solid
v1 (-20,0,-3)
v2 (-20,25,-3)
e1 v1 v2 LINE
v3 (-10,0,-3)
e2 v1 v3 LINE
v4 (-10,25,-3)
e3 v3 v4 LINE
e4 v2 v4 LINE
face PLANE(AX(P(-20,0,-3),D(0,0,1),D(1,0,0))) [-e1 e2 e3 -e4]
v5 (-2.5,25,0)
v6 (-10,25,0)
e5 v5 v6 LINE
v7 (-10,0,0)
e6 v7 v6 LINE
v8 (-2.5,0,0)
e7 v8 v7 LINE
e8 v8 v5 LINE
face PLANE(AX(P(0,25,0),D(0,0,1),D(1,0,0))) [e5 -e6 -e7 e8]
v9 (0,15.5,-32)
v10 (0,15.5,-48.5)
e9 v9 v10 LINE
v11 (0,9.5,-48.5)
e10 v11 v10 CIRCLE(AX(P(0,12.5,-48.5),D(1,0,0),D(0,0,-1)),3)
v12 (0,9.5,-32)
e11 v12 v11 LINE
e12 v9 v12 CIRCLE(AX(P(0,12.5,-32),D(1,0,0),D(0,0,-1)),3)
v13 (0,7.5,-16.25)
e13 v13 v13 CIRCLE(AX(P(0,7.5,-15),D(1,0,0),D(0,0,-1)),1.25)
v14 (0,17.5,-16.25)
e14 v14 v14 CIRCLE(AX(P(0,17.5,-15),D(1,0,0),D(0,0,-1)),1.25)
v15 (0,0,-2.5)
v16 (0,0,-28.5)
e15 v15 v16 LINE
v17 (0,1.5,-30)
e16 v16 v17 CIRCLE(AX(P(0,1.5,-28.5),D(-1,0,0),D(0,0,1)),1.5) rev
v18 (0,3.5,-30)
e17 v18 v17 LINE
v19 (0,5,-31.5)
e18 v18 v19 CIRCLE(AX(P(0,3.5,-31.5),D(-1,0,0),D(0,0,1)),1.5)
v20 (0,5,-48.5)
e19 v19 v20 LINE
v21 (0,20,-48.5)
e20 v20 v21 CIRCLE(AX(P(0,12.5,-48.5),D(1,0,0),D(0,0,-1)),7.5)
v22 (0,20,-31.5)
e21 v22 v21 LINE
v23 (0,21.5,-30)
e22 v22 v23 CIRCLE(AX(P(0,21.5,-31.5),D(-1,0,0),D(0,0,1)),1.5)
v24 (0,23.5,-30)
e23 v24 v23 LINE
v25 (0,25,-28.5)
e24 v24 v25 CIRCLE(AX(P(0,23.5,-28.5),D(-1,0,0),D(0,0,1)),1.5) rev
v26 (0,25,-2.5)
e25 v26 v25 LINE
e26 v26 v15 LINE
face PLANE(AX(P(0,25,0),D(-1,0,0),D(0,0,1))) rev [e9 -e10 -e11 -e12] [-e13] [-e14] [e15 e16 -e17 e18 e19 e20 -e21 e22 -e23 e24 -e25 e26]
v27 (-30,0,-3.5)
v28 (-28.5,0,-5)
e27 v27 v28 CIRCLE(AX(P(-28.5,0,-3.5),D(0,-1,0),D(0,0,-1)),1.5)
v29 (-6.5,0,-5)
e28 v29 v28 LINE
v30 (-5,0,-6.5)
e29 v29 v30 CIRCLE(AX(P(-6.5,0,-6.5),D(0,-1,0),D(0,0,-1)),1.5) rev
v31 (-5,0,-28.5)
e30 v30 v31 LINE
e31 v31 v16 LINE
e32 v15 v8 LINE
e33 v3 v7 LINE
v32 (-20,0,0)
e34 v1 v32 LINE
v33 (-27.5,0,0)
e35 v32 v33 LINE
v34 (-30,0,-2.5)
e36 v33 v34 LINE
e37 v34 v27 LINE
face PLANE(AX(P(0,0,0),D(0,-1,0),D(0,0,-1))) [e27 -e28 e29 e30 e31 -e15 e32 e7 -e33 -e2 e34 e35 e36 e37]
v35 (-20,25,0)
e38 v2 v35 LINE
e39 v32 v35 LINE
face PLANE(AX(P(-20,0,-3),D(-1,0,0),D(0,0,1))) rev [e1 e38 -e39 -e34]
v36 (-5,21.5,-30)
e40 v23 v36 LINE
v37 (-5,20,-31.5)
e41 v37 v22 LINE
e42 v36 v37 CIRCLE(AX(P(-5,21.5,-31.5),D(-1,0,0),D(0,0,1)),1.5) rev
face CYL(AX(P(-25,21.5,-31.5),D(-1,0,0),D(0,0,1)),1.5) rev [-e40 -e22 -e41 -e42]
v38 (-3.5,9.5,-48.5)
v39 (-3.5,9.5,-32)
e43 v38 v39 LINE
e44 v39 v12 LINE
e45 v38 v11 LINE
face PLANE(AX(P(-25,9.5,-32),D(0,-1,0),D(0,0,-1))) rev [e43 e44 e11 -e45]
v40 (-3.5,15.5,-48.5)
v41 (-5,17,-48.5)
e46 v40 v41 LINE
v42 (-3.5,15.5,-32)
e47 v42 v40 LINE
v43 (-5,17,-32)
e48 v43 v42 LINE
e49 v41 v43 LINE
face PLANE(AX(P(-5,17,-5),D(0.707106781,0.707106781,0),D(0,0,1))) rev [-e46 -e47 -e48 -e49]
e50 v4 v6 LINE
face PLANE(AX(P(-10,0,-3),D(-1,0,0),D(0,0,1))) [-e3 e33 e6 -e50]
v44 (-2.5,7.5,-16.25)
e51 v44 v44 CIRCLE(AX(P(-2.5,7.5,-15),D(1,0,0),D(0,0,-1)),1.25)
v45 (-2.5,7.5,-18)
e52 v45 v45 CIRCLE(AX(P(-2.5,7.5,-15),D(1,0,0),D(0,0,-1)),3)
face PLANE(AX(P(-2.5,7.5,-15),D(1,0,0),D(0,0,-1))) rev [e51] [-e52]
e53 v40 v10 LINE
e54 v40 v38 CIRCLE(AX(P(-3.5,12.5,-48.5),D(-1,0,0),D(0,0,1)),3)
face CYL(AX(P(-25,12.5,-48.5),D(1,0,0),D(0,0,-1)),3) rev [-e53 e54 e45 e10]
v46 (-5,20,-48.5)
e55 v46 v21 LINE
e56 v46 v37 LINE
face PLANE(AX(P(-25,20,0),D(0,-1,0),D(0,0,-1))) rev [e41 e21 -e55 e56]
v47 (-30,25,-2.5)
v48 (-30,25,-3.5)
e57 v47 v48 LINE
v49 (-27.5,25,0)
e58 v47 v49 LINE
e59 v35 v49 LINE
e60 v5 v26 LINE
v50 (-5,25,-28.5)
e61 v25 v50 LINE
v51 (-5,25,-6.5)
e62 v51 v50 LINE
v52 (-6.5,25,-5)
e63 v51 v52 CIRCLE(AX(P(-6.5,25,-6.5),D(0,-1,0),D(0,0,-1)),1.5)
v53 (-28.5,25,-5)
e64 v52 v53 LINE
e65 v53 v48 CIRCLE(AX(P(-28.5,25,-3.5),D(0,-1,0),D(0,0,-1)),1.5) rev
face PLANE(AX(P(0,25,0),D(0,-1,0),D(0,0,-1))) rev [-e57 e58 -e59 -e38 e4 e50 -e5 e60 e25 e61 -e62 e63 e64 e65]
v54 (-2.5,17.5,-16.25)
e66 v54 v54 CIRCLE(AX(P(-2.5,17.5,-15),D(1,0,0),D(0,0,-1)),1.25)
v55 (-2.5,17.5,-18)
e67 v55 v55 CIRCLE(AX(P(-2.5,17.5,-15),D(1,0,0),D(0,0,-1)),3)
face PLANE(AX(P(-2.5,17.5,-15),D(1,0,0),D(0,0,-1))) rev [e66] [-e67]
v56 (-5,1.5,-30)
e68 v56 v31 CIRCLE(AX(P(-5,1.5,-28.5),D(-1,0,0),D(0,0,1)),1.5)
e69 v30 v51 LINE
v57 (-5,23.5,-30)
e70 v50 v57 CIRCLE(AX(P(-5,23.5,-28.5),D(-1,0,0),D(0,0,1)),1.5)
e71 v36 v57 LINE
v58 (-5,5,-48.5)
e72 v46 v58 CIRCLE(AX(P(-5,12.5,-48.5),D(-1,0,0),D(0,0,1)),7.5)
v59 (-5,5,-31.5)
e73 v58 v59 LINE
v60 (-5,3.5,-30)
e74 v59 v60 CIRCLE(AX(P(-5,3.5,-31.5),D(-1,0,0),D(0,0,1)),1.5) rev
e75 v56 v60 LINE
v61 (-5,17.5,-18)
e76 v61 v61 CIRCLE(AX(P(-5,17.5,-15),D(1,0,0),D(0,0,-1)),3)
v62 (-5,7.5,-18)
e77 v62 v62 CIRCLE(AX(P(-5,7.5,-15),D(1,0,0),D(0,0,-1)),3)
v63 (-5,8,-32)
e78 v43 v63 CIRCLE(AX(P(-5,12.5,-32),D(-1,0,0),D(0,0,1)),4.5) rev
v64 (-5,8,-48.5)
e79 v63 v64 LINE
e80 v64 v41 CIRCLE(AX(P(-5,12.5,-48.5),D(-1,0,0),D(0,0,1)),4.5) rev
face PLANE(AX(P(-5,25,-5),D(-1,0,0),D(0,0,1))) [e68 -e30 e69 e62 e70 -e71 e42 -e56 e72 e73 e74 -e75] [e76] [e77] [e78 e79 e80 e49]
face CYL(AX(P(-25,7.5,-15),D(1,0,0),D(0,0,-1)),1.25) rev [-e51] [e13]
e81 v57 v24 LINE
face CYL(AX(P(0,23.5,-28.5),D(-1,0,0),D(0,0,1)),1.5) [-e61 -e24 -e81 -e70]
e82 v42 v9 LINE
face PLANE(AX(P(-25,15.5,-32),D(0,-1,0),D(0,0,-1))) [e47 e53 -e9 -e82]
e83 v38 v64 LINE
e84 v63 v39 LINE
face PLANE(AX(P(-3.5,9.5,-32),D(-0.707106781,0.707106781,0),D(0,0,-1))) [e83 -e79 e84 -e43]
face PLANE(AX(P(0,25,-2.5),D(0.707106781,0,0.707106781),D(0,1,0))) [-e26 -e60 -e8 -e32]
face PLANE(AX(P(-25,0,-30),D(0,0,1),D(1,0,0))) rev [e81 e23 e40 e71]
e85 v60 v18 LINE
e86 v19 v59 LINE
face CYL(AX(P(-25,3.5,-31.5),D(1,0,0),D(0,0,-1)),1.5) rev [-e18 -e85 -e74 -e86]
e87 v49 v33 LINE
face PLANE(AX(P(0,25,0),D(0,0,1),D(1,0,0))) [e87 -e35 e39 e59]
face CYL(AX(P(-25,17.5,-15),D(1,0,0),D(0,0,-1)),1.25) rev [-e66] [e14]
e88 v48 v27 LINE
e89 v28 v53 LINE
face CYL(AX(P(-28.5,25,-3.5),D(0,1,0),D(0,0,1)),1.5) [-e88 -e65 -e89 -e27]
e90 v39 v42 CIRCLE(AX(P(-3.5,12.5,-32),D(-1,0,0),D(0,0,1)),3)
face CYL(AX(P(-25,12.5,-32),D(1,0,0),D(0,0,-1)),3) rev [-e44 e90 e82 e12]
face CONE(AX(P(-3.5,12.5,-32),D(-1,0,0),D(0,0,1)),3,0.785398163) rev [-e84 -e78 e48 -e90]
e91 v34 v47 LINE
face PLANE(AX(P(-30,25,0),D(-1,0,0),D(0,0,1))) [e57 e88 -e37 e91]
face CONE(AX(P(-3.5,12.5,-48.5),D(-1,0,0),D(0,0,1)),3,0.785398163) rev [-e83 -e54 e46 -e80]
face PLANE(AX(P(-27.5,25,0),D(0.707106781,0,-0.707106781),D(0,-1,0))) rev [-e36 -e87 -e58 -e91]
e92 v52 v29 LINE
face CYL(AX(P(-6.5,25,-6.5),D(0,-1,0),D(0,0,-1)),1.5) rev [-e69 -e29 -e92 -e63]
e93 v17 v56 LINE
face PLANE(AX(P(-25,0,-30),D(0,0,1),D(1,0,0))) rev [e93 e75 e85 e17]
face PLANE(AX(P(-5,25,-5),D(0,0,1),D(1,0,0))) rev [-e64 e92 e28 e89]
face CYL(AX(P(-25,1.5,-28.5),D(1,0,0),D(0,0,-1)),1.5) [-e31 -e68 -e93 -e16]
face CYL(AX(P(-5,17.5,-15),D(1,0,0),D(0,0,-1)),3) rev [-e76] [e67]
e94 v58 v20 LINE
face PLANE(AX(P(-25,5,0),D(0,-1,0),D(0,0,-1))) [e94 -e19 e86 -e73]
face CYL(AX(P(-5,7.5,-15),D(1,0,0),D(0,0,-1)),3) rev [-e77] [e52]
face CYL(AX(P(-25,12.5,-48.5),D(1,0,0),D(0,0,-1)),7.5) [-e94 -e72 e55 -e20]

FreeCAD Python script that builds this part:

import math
import FreeCAD as App
import Part
import Sketcher

V = App.Vector
Q = App.Units.Quantity


def edges_at(feature, points):
    """Names of the edges that pass closest to the given points."""
    edges = feature.Shape.Edges
    near = lambda p: min(range(len(edges)), key=lambda i: edges[i].distToShape(Part.Vertex(*p))[0])
    return sorted({f"Edge{near(p) + 1}" for p in points})

doc = App.newDocument("Part")
body = doc.addObject("PartDesign::Body", "Body")

# Sketch on XZ plane
sketch1 = doc.addObject("Sketcher::SketchObject", "Sketch")
body.addObject(sketch1)
sketch1.AttachmentSupport = (doc.XZ_Plane, [""])
sketch1.MapMode = "FlatFace"
sketch1.addGeometry(Part.LineSegment(V(-30, 0, 0), V(0, 0, 0)), False)
sketch1.addGeometry(Part.LineSegment(V(0, 0, 0), V(0, -56, 0)), False)
sketch1.addGeometry(Part.LineSegment(V(0, -56, 0), V(-5, -56, 0)), False)
sketch1.addGeometry(Part.LineSegment(V(-5, -56, 0), V(-5, -5, 0)), False)
sketch1.addGeometry(Part.LineSegment(V(-5, -5, 0), V(-30, -5, 0)), False)
sketch1.addGeometry(Part.LineSegment(V(-30, -5, 0), V(-30, 0, 0)), False)
sketch1.addConstraint(Sketcher.Constraint("Coincident", 0, 2, 1, 1))
sketch1.addConstraint(Sketcher.Constraint("Coincident", 1, 2, 2, 1))
sketch1.addConstraint(Sketcher.Constraint("Coincident", 2, 2, 3, 1))
sketch1.addConstraint(Sketcher.Constraint("Coincident", 3, 2, 4, 1))
sketch1.addConstraint(Sketcher.Constraint("Coincident", 4, 2, 5, 1))
sketch1.addConstraint(Sketcher.Constraint("Coincident", 5, 2, 0, 1))
sketch1.addConstraint(Sketcher.Constraint("Horizontal", 0))
sketch1.addConstraint(Sketcher.Constraint("Vertical", 1))
sketch1.addConstraint(Sketcher.Constraint("Horizontal", 2))
sketch1.addConstraint(Sketcher.Constraint("Vertical", 3))
sketch1.addConstraint(Sketcher.Constraint("Horizontal", 4))
sketch1.addConstraint(Sketcher.Constraint("Vertical", 5))
sketch1.addConstraint(Sketcher.Constraint("Coincident", 0, 2, -1, 1))
sketch1.addConstraint(Sketcher.Constraint("Equal", 2, 5))
sketch1.addConstraint(Sketcher.Constraint("DistanceX", 0, 1, 0, 2, Q("30 mm")))
sketch1.addConstraint(Sketcher.Constraint("DistanceX", 2, 2, 2, 1, Q("5 mm")))
sketch1.addConstraint(Sketcher.Constraint("DistanceY", 1, 2, 1, 1, Q("56 mm")))
pad1 = doc.addObject("PartDesign::Pad", "Pad")
body.addObject(pad1)
pad1.Profile = sketch1
pad1.Length = 25
pad1.Reversed = True

# Sketch on YZ plane
sketch2 = doc.addObject("Sketcher::SketchObject", "Sketch001")
body.addObject(sketch2)
sketch2.AttachmentSupport = (doc.YZ_Plane, [""])
sketch2.MapMode = "FlatFace"
sketch2.addGeometry(Part.LineSegment(V(25, -30, 0), V(20, -30, 0)), False)
sketch2.addGeometry(Part.LineSegment(V(20, -30, 0), V(20, -48, 0)), False)
sketch2.addGeometry(Part.ArcOfCircle(Part.Circle(V(12, -48, 0), V(0, 0, 1), 8), math.radians(-90), math.radians(0)), False)
sketch2.addGeometry(Part.LineSegment(V(12, -56, 0), V(25, -56, 0)), False)
sketch2.addGeometry(Part.LineSegment(V(25, -56, 0), V(25, -30, 0)), False)
sketch2.addGeometry(Part.ArcOfCircle(Part.Circle(V(12, -48, 0), V(0, 0, 1), 8), math.radians(180), math.radians(270)), False)
sketch2.addGeometry(Part.LineSegment(V(5, -48, 0), V(5, -30, 0)), False)
sketch2.addGeometry(Part.LineSegment(V(5, -30, 0), V(0, -30, 0)), False)
sketch2.addGeometry(Part.LineSegment(V(0, -30, 0), V(0, -56, 0)), False)
sketch2.addGeometry(Part.LineSegment(V(0, -56, 0), V(12, -56, 0)), False)
sketch2.addConstraint(Sketcher.Constraint("Coincident", 0, 2, 1, 1))
sketch2.addConstraint(Sketcher.Constraint("Tangent", 1, 2, 2, 2))
sketch2.addConstraint(Sketcher.Constraint("Tangent", 2, 1, 3, 1))
sketch2.addConstraint(Sketcher.Constraint("Coincident", 3, 2, 4, 1))
sketch2.addConstraint(Sketcher.Constraint("Coincident", 4, 2, 0, 1))
sketch2.addConstraint(Sketcher.Constraint("Tangent", 5, 1, 6, 1))
sketch2.addConstraint(Sketcher.Constraint("Coincident", 6, 2, 7, 1))
sketch2.addConstraint(Sketcher.Constraint("Coincident", 7, 2, 8, 1))
sketch2.addConstraint(Sketcher.Constraint("Coincident", 8, 2, 9, 1))
sketch2.addConstraint(Sketcher.Constraint("Tangent", 9, 2, 5, 2))
sketch2.addConstraint(Sketcher.Constraint("Horizontal", 0))
sketch2.addConstraint(Sketcher.Constraint("Vertical", 1))
sketch2.addConstraint(Sketcher.Constraint("Horizontal", 3))
sketch2.addConstraint(Sketcher.Constraint("Vertical", 4))
sketch2.addConstraint(Sketcher.Constraint("Vertical", 6))
sketch2.addConstraint(Sketcher.Constraint("Horizontal", 7))
sketch2.addConstraint(Sketcher.Constraint("Vertical", 8))
sketch2.addConstraint(Sketcher.Constraint("Horizontal", 9))
sketch2.addConstraint(Sketcher.Constraint("Coincident", 5, 3, 2, 3))
sketch2.addConstraint(Sketcher.Constraint("Equal", 2, 5))
sketch2.addConstraint(Sketcher.Constraint("PointOnObject", 7, 2, -2))
sketch2.addConstraint(Sketcher.Constraint("Horizontal", 4, 2, 6, 2))
sketch2.addConstraint(Sketcher.Constraint("Equal", 0, 7))
sketch2.addConstraint(Sketcher.Constraint("Radius", 2, Q("7.5 mm")))
sketch2.addConstraint(Sketcher.Constraint("DistanceX", 0, 2, 0, 1, Q("5 mm")))
sketch2.addConstraint(Sketcher.Constraint("DistanceY", 4, 1, 4, 2, Q("26 mm")))
sketch2.addConstraint(Sketcher.Constraint("DistanceY", 0, 2, -1, 1, Q("30 mm")))
pocket1 = doc.addObject("PartDesign::Pocket", "Pocket")
body.addObject(pocket1)
pocket1.Profile = sketch2
pocket1.Length = 25

# Sketch on YZ plane
sketch3 = doc.addObject("Sketcher::SketchObject", "Sketch002")
body.addObject(sketch3)
sketch3.AttachmentSupport = (doc.YZ_Plane, [""])
sketch3.MapMode = "FlatFace"
sketch3.addGeometry(Part.LineSegment(V(15.5, -48.5, 0), V(15.5, -32, 0)), False)
sketch3.addGeometry(Part.ArcOfCircle(Part.Circle(V(12.5, -32, 0), V(0, 0, 1), 3), math.radians(0), math.radians(180)), False)
sketch3.addGeometry(Part.LineSegment(V(9.5, -32, 0), V(9.5, -48.5, 0)), False)
sketch3.addGeometry(Part.ArcOfCircle(Part.Circle(V(12.5, -48.5, 0), V(0, 0, 1), 3), math.radians(180), math.radians(360)), False)
sketch3.addConstraint(Sketcher.Constraint("Tangent", 0, 2, 1, 1))
sketch3.addConstraint(Sketcher.Constraint("Tangent", 1, 2, 2, 1))
sketch3.addConstraint(Sketcher.Constraint("Tangent", 2, 2, 3, 1))
sketch3.addConstraint(Sketcher.Constraint("Tangent", 3, 2, 0, 1))
sketch3.addConstraint(Sketcher.Constraint("Vertical", 0))
sketch3.addConstraint(Sketcher.Constraint("Vertical", 2))
sketch3.addConstraint(Sketcher.Constraint("Radius", 1, Q("3 mm")))
sketch3.addConstraint(Sketcher.Constraint("DistanceY", 0, 1, 0, 2, Q("16.5 mm")))
sketch3.addConstraint(Sketcher.Constraint("DistanceY", 1, 3, -1, 1, Q("32 mm")))
sketch3.addConstraint(Sketcher.Constraint("DistanceX", -1, 1, 1, 3, Q("12.5 mm")))
pocket2 = doc.addObject("PartDesign::Pocket", "Pocket001")
body.addObject(pocket2)
pocket2.Profile = sketch3
pocket2.Length = 25
doc.recompute()

fillet = doc.addObject("PartDesign::Fillet", "Fillet")
body.addObject(fillet)
fillet.Base = (pocket2, edges_at(pocket2, [
    (-2.5, 25, -30),
    (-2.5, 20, -30),
    (-2.5, 0, -30),
    (-2.5, 5, -30),
]))
fillet.Radius = 1.5

# Sketch on YZ plane
sketch4 = doc.addObject("Sketcher::SketchObject", "Sketch003")
body.addObject(sketch4)
sketch4.AttachmentSupport = (doc.YZ_Plane, [""])
sketch4.MapMode = "FlatFace"
sketch4.addGeometry(Part.Circle(V(17.5, -15, 0), V(0, 0, 1), 1.2), False)
sketch4.addGeometry(Part.Circle(V(7.5, -15, 0), V(0, 0, 1), 1.2), False)
sketch4.addConstraint(Sketcher.Constraint("Equal", 0, 1))
sketch4.addConstraint(Sketcher.Constraint("Horizontal", 0, 3, 1, 3))
sketch4.addConstraint(Sketcher.Constraint("Diameter", 0, Q("2.5 mm")))
sketch4.addConstraint(Sketcher.Constraint("DistanceY", 0, 3, -1, 1, Q("15 mm")))
sketch4.addConstraint(Sketcher.Constraint("DistanceX", 1, 3, 0, 3, Q("10 mm")))
sketch4.addConstraint(Sketcher.Constraint("DistanceX", -1, 1, 0, 3, Q("17.5 mm")))
pocket3 = doc.addObject("PartDesign::Pocket", "Pocket002")
body.addObject(pocket3)
pocket3.Profile = sketch4
pocket3.Length = 25

# Sketch on YZ plane
sketch5 = doc.addObject("Sketcher::SketchObject", "Sketch004")
body.addObject(sketch5)
sketch5.AttachmentSupport = (doc.YZ_Plane, [""])
sketch5.MapMode = "FlatFace"
sketch5.AttachmentOffset = App.Placement(V(0, 0, -2.5), App.Rotation())
sketch5.addGeometry(Part.Circle(V(17.5, -15, 0), V(0, 0, 1), 3), False)
sketch5.addGeometry(Part.Circle(V(17.5, -15, 0), V(0, 0, 1), 1.2), False)
sketch5.addGeometry(Part.Circle(V(7.5, -15, 0), V(0, 0, 1), 3), False)
sketch5.addGeometry(Part.Circle(V(7.5, -15, 0), V(0, 0, 1), 1.2), False)
sketch5.addConstraint(Sketcher.Constraint("Coincident", 1, 3, 0, 3))
sketch5.addConstraint(Sketcher.Constraint("Coincident", 3, 3, 2, 3))
sketch5.addConstraint(Sketcher.Constraint("Equal", 0, 2))
sketch5.addConstraint(Sketcher.Constraint("Equal", 1, 3))
sketch5.addConstraint(Sketcher.Constraint("Horizontal", 1, 3, 2, 3))
sketch5.addConstraint(Sketcher.Constraint("Diameter", 0, Q("6 mm")))
sketch5.addConstraint(Sketcher.Constraint("Diameter", 1, Q("2.5 mm")))
sketch5.addConstraint(Sketcher.Constraint("DistanceY", 0, 3, -1, 1, Q("15 mm")))
sketch5.addConstraint(Sketcher.Constraint("DistanceX", 2, 3, 0, 3, Q("10 mm")))
sketch5.addConstraint(Sketcher.Constraint("DistanceX", -1, 1, 0, 3, Q("17.5 mm")))
pocket4 = doc.addObject("PartDesign::Pocket", "Pocket003")
body.addObject(pocket4)
pocket4.Profile = sketch5
pocket4.Length = 2.5

# Sketch on XZ plane
sketch6 = doc.addObject("Sketcher::SketchObject", "Sketch005")
body.addObject(sketch6)
sketch6.AttachmentSupport = (doc.XZ_Plane, [""])
sketch6.MapMode = "FlatFace"
sketch6.AttachmentOffset = App.Placement(V(0, 0, -25), App.Rotation())
sketch6.addGeometry(Part.LineSegment(V(-20, -3, 0), V(-20, 0, 0)), False)
sketch6.addGeometry(Part.LineSegment(V(-20, 0, 0), V(-10, 0, 0)), False)
sketch6.addGeometry(Part.LineSegment(V(-10, 0, 0), V(-10, -3, 0)), False)
sketch6.addGeometry(Part.LineSegment(V(-10, -3, 0), V(-20, -3, 0)), False)
sketch6.addConstraint(Sketcher.Constraint("Coincident", 0, 2, 1, 1))
sketch6.addConstraint(Sketcher.Constraint("Coincident", 1, 2, 2, 1))
sketch6.addConstraint(Sketcher.Constraint("Coincident", 2, 2, 3, 1))
sketch6.addConstraint(Sketcher.Constraint("Coincident", 3, 2, 0, 1))
sketch6.addConstraint(Sketcher.Constraint("Vertical", 0))
sketch6.addConstraint(Sketcher.Constraint("Horizontal", 1))
sketch6.addConstraint(Sketcher.Constraint("Vertical", 2))
sketch6.addConstraint(Sketcher.Constraint("Horizontal", 3))
sketch6.addConstraint(Sketcher.Constraint("PointOnObject", 0, 2, -1))
sketch6.addConstraint(Sketcher.Constraint("DistanceX", 1, 1, 1, 2, Q("10 mm")))
sketch6.addConstraint(Sketcher.Constraint("DistanceY", 0, 1, 0, 2, Q("3 mm")))
sketch6.addConstraint(Sketcher.Constraint("DistanceX", 0, 2, -1, 1, Q("20 mm")))
pocket5 = doc.addObject("PartDesign::Pocket", "Pocket004")
body.addObject(pocket5)
pocket5.Profile = sketch6
pocket5.Type = "ThroughAll"
pocket5.Reversed = True
doc.recompute()

chamfer = doc.addObject("PartDesign::Chamfer", "Chamfer")
body.addObject(chamfer)
chamfer.Base = (pocket5, edges_at(pocket5, [(0, 12.5, 0), (-30, 12.5, 0)]))
chamfer.Size = 2.5
doc.recompute()

fillet2 = doc.addObject("PartDesign::Fillet", "Fillet001")
body.addObject(fillet2)
fillet2.Base = (chamfer, edges_at(chamfer, [(-5, 12.5, -5), (-30, 12.5, -5)]))
fillet2.Radius = 1.5
doc.recompute()

chamfer2 = doc.addObject("PartDesign::Chamfer", "Chamfer001")
body.addObject(chamfer2)
chamfer2.Base = (fillet2, edges_at(fillet2, [
    (-5, 9.5, -40.25),
    (-5, 12.5, -51.5),
    (-5, 15.5, -40.25),
    (-5, 12.5, -29),
]))
chamfer2.Size = 1.5

doc.recompute()
